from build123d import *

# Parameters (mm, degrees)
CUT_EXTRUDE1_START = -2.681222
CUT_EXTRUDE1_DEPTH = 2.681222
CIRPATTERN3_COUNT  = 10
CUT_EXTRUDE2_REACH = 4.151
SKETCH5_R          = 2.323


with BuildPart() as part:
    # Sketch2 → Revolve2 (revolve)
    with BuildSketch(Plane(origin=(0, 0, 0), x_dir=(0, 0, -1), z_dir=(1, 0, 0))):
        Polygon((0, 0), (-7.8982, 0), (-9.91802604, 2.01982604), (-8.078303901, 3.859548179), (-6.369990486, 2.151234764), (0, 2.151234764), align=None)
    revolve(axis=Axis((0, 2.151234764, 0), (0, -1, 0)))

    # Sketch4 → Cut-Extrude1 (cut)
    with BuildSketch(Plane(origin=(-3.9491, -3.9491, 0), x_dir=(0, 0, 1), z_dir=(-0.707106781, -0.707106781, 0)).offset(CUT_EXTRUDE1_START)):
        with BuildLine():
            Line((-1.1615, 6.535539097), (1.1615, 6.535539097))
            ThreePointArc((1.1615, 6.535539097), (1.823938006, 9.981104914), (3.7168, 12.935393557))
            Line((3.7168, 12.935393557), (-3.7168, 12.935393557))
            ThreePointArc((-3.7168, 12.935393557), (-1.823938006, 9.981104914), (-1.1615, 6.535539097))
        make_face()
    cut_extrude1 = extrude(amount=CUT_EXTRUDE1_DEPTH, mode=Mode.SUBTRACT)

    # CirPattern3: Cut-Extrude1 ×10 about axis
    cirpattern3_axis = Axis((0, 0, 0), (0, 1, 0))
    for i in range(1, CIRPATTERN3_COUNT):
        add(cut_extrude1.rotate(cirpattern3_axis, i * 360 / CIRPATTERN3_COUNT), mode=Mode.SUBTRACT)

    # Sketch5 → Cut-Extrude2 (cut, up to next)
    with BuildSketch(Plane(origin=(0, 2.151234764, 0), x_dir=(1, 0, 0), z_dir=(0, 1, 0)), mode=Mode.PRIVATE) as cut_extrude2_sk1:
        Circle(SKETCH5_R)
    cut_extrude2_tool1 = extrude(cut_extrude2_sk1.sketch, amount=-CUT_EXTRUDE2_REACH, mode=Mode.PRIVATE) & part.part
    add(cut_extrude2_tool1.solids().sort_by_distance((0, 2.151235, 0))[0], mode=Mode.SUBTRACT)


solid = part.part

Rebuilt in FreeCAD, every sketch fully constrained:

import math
import FreeCAD as App
import Part
import Sketcher
from FreeCAD import Vector
Q = App.Units.Quantity


def add_polygon(sketch, points):
    """Adds a closed chain of lines whose ends are joined by coincident constraints."""
    first, n = sketch.GeometryCount, len(points)
    for a, b in zip(points, points[1:] + points[:1]):
        sketch.addGeometry(Part.LineSegment(App.Vector(*a, 0), App.Vector(*b, 0)), False)
    for i in range(n):
        sketch.addConstraint(Sketcher.Constraint("Coincident", first + i, 2, first + (i + 1) % n, 1))

doc = App.newDocument("Part")
body = doc.addObject("PartDesign::Body", "Body")

# Sketch on YZ plane
sketch1 = body.newObject("Sketcher::SketchObject", "Sketch")
sketch1.AttachmentSupport = (doc.getObject("YZ_Plane"), [""])
sketch1.MapMode = "FlatFace"
add_polygon(sketch1, [(0, 7.9), (0, 0), (2.2, 0), (2.2, 6.4), (3.9, 8.1), (2, 9.9)])  # lines 0-5
sketch1.addConstraint([
    Sketcher.Constraint("Vertical", 0),
    Sketcher.Constraint("Horizontal", 1),
    Sketcher.Constraint("Vertical", 2),
    Sketcher.Constraint("Coincident", 0, 2, -1, 1),
    Sketcher.Constraint("Perpendicular", 3, 4),
    Sketcher.Constraint("Perpendicular", 4, 5),
    Sketcher.Constraint("Angle", 3, Q("45 deg")),
    Sketcher.Constraint("DistanceY", 0, 2, 0, 1, 7.8982),
    Sketcher.Constraint("DistanceY", 2, 1, 2, 2, 6.36999),
    Sketcher.Constraint("Distance", 3, 2.41592),
    Sketcher.Constraint("Distance", 4, 2.60176),
])
revolution = body.newObject("PartDesign::Revolution", "Revolution")
revolution.Profile = sketch1
revolution.ReferenceAxis = (sketch1, ["H_Axis"])
revolution.Angle = 360

# Sketch on an angled plane
sketch2 = body.newObject("Sketcher::SketchObject", "Sketch001")
sketch2.Placement = App.Placement(Vector(-2.05319, -2.05319, 0), App.Rotation(Vector(0, 0, 1), Vector(-0.707106781, 0.707106781, 0), Vector(-0.707106781, -0.707106781, 0), "ZXY"))
sketch2.addGeometry([
    Part.LineSegment(Vector(-1.2, 6.5, 0), Vector(1.2, 6.5, 0)),
    Part.ArcOfCircle(Part.Circle(Vector(10.5, 6.5, 0), Vector(0, 0, 1), 9.3), math.radians(136), math.radians(180)),
    Part.LineSegment(Vector(3.7, 12.9, 0), Vector(-3.7, 12.9, 0)),
    Part.ArcOfCircle(Part.Circle(Vector(-10.5, 6.5, 0), Vector(0, 0, 1), 9.3), math.radians(0), math.radians(44)),
], False)
sketch2.addConstraint([
    Sketcher.Constraint("Coincident", 0, 2, 1, 2),
    Sketcher.Constraint("Coincident", 1, 1, 2, 1),
    Sketcher.Constraint("Coincident", 2, 2, 3, 2),
    Sketcher.Constraint("Coincident", 3, 1, 0, 1),
    Sketcher.Constraint("Horizontal", 0),
    Sketcher.Constraint("Horizontal", 2),
    Sketcher.Constraint("Equal", 1, 3),
    Sketcher.Constraint("Symmetric", 1, 3, 3, 3, -2),
    Sketcher.Constraint("Horizontal", 3, 3, 0, 2),
    Sketcher.Constraint("Radius", 1, 9.292),
    Sketcher.Constraint("DistanceX", 0, 1, 0, 2, 2.323),
    Sketcher.Constraint("DistanceX", 2, 2, 2, 1, 7.4336),
    Sketcher.Constraint("DistanceY", -1, 1, 1, 3, 6.535539),
])
pocket1 = body.newObject("PartDesign::Pocket", "Pocket")
pocket1.Profile = sketch2
pocket1.Length = 2.681222
pocket1.Reversed = True
doc.recompute()

polarpattern = body.newObject("PartDesign::PolarPattern", "PolarPattern")
polarpattern.Originals = [pocket1]
polarpattern.Axis = (doc.getObject("Y_Axis"), [""])
polarpattern.Angle = 360
polarpattern.Occurrences = 10
body.Tip = polarpattern

# Sketch on XZ plane
sketch3 = body.newObject("Sketcher::SketchObject", "Sketch002")
sketch3.AttachmentSupport = (doc.getObject("XZ_Plane"), [""])
sketch3.MapMode = "FlatFace"
sketch3.AttachmentOffset = App.Placement(Vector(0, 0, -2.151235), App.Rotation())
sketch3.addGeometry(Part.Circle(Vector(0, 0, 0), Vector(0, 0, 1), 2.3), False)
sketch3.addConstraint([
    Sketcher.Constraint("Coincident", 0, 3, -1, 1),
    Sketcher.Constraint("Diameter", 0, 4.646),
])
pocket2 = body.newObject("PartDesign::Pocket", "Pocket001")
pocket2.Profile = sketch3
pocket2.Type = "UpToFirst"
pocket2.Reversed = True

doc.recompute()
